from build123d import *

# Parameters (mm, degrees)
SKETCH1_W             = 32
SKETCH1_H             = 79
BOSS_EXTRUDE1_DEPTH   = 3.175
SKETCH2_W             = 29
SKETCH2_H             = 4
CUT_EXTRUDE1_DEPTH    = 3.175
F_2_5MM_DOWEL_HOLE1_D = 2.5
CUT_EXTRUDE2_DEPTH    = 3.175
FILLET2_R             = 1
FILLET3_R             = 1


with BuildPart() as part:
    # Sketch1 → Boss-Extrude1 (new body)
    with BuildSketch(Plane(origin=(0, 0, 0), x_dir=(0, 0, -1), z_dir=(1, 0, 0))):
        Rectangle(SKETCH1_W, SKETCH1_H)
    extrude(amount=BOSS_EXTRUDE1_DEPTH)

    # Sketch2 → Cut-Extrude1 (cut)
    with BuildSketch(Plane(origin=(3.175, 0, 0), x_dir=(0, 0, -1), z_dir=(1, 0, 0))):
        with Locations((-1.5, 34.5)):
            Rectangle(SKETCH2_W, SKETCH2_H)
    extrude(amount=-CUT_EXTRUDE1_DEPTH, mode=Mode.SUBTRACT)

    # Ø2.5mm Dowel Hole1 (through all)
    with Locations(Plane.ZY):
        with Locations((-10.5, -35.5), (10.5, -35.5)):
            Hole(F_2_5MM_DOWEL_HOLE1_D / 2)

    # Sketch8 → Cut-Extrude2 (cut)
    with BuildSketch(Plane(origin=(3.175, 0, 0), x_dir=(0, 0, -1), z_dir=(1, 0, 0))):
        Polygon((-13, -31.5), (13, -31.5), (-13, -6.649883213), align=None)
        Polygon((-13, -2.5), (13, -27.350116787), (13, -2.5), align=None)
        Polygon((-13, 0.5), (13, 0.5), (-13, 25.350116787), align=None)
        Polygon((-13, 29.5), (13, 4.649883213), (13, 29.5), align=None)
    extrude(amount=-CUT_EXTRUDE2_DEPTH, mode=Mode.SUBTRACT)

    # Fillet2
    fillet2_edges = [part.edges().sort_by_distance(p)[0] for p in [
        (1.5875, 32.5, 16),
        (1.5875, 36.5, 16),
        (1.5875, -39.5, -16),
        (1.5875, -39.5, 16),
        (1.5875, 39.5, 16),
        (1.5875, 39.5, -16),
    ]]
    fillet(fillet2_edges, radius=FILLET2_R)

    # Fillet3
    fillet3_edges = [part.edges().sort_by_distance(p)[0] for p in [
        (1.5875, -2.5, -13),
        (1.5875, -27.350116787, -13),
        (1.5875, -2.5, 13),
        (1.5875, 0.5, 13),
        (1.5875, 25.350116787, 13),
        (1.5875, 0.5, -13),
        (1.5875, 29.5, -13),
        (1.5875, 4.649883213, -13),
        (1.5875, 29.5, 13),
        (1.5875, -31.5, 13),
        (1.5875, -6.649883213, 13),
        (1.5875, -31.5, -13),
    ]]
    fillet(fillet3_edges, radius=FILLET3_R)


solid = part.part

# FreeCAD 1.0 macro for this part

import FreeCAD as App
import Part
import Sketcher

V = App.Vector
Q = App.Units.Quantity


def edges_at(feature, points):
    """Names of the edges that pass closest to the given points."""
    edges = feature.Shape.Edges
    near = lambda p: min(range(len(edges)), key=lambda i: edges[i].distToShape(Part.Vertex(*p))[0])
    return sorted({f"Edge{near(p) + 1}" for p in points})


def add_polygon(sketch, points):
    """Adds a closed chain of lines whose ends are joined by coincident constraints."""
    first, n = sketch.GeometryCount, len(points)
    for a, b in zip(points, points[1:] + points[:1]):
        sketch.addGeometry(Part.LineSegment(App.Vector(*a, 0), App.Vector(*b, 0)), False)
    for i in range(n):
        sketch.addConstraint(Sketcher.Constraint("Coincident", first + i, 2, first + (i + 1) % n, 1))

doc = App.newDocument("Part")
body = doc.addObject("PartDesign::Body", "Body")

sketch1 = doc.addObject("Sketcher::SketchObject", "Sketch")
body.addObject(sketch1)
sketch1.AttachmentSupport = (doc.YZ_Plane, [""])
sketch1.MapMode = "FlatFace"
add_polygon(sketch1, [(39.5, 16), (-39.5, 16), (-39.5, -16), (39.5, -16)])
sketch1.addConstraint([
    Sketcher.Constraint("Horizontal", 0),
    Sketcher.Constraint("Vertical", 1),
    Sketcher.Constraint("Horizontal", 2),
    Sketcher.Constraint("Vertical", 3),
    Sketcher.Constraint("Symmetric", 0, 2, 2, 2, -1, 1),
    Sketcher.Constraint("DistanceX", 0, 2, 0, 1, Q("79 mm")),
    Sketcher.Constraint("DistanceY", 1, 2, 1, 1, Q("32 mm")),
])
pad1 = doc.addObject("PartDesign::Pad", "Pad")
body.addObject(pad1)
pad1.Profile = sketch1
pad1.Length = 3.175

sketch2 = doc.addObject("Sketcher::SketchObject", "Sketch001")
body.addObject(sketch2)
sketch2.AttachmentSupport = (doc.YZ_Plane, [""])
sketch2.MapMode = "FlatFace"
sketch2.AttachmentOffset = App.Placement(V(0, 0, 3.175), App.Rotation())
add_polygon(sketch2, [(36.5, 16), (32.5, 16), (32.5, -13), (36.5, -13)])
sketch2.addConstraint([
    Sketcher.Constraint("Horizontal", 0),
    Sketcher.Constraint("Vertical", 1),
    Sketcher.Constraint("Horizontal", 2),
    Sketcher.Constraint("Vertical", 3),
    Sketcher.Constraint("DistanceX", 0, 2, 0, 1, Q("4 mm")),
    Sketcher.Constraint("DistanceY", 1, 2, 1, 1, Q("29 mm")),
    Sketcher.Constraint("DistanceY", -1, 1, 0, 2, Q("16 mm")),
    Sketcher.Constraint("DistanceX", -1, 1, 0, 2, Q("32.5 mm")),
])
pocket1 = doc.addObject("PartDesign::Pocket", "Pocket")
body.addObject(pocket1)
pocket1.Profile = sketch2
pocket1.Length = 3.175

sketch3 = doc.addObject("Sketcher::SketchObject", "Sketch002")
body.addObject(sketch3)
sketch3.AttachmentSupport = (doc.YZ_Plane, [""])
sketch3.MapMode = "FlatFace"
sketch3.addGeometry([
    Part.Circle(V(-35.5, -10.5, 0), V(0, 0, 1), 1.25),
    Part.Circle(V(-35.5, 10.5, 0), V(0, 0, 1), 1.25),
], False)
sketch3.addConstraint([
    Sketcher.Constraint("Equal", 0, 1),
    Sketcher.Constraint("Symmetric", 0, 3, 1, 3, -1),
    Sketcher.Constraint("Diameter", 0, Q("2.5 mm")),
    Sketcher.Constraint("DistanceY", 0, 3, 1, 3, Q("21 mm")),
    Sketcher.Constraint("DistanceX", 0, 3, -1, 1, Q("35.5 mm")),
])
doc.recompute()
hole = doc.addObject("PartDesign::Hole", "Hole")
body.addObject(hole)
hole.Profile = sketch3
hole.ThreadType = "None"
hole.Diameter = 2.5
hole.DepthType = "ThroughAll"
hole.Reversed = True

sketch4 = doc.addObject("Sketcher::SketchObject", "Sketch003")
body.addObject(sketch4)
sketch4.AttachmentSupport = (doc.YZ_Plane, [""])
sketch4.MapMode = "FlatFace"
sketch4.AttachmentOffset = App.Placement(V(0, 0, 3.175), App.Rotation())
add_polygon(sketch4, [(-31.5, 13), (-31.5, -13), (-6.649883, 13)])
add_polygon(sketch4, [(-2.5, 13), (-27.350117, -13), (-2.5, -13)])
add_polygon(sketch4, [(0.5, 13), (0.5, -13), (25.350117, 13)])
add_polygon(sketch4, [(29.5, 13), (4.649883, -13), (29.5, -13)])
sketch4.addConstraint([
    Sketcher.Constraint("Vertical", 0),
    Sketcher.Constraint("Horizontal", 2),
    Sketcher.Constraint("Horizontal", 4),
    Sketcher.Constraint("Vertical", 5),
    Sketcher.Constraint("Vertical", 6),
    Sketcher.Constraint("Horizontal", 8),
    Sketcher.Constraint("Horizontal", 10),
    Sketcher.Constraint("Vertical", 11),
    Sketcher.Constraint("Parallel", 1, 3),
    Sketcher.Constraint("Parallel", 3, 7),
    Sketcher.Constraint("Parallel", 7, 9),
    Sketcher.Constraint("Horizontal", 0, 2, 3, 2),
    Sketcher.Constraint("Horizontal", 2, 2, 5, 2),
    Sketcher.Constraint("Horizontal", 4, 2, 6, 2),
    Sketcher.Constraint("Horizontal", 5, 2, 7, 2),
    Sketcher.Constraint("Horizontal", 6, 2, 9, 2),
    Sketcher.Constraint("Horizontal", 8, 2, 11, 2),
    Sketcher.Constraint("DistanceY", 0, 2, 0, 1, Q("26 mm")),
    Sketcher.Constraint("DistanceY", 0, 2, -1, 1, Q("13 mm")),
    Sketcher.Constraint("DistanceX", 0, 2, 4, 2, Q("29 mm")),
    Sketcher.Constraint("DistanceX", 4, 2, 6, 2, Q("3 mm")),
    Sketcher.Constraint("DistanceX", 6, 2, 10, 2, Q("29 mm")),
    Sketcher.Constraint("DistanceX", 0, 2, -1, 1, Q("31.5 mm")),
    Sketcher.Constraint("DistanceX", 2, 2, 2, 1, Q("24.850117 mm")),
])
pocket2 = doc.addObject("PartDesign::Pocket", "Pocket001")
body.addObject(pocket2)
pocket2.Profile = sketch4
pocket2.Length = 3.175
doc.recompute()

fillet = doc.addObject("PartDesign::Fillet", "Fillet")
body.addObject(fillet)
fillet.Base = (pocket2, edges_at(pocket2, [
    (1.587, 32.5, 16),
    (1.587, 36.5, 16),
    (1.587, -39.5, -16),
    (1.587, -39.5, 16),
    (1.587, 39.5, 16),
    (1.587, 39.5, -16),
]))
fillet.Radius = 1
doc.recompute()

fillet2 = doc.addObject("PartDesign::Fillet", "Fillet001")
body.addObject(fillet2)
fillet2.Base = (fillet, edges_at(fillet, [
    (1.587, -2.5, -13),
    (1.587, -27.35, -13),
    (1.587, -2.5, 13),
    (1.587, 0.5, 13),
    (1.587, 25.35, 13),
    (1.587, 0.5, -13),
    (1.587, 29.5, -13),
    (1.587, 4.65, -13),
    (1.587, 29.5, 13),
    (1.587, -31.5, 13),
    (1.587, -6.65, 13),
    (1.587, -31.5, -13),
]))
fillet2.Radius = 1

doc.recompute()
